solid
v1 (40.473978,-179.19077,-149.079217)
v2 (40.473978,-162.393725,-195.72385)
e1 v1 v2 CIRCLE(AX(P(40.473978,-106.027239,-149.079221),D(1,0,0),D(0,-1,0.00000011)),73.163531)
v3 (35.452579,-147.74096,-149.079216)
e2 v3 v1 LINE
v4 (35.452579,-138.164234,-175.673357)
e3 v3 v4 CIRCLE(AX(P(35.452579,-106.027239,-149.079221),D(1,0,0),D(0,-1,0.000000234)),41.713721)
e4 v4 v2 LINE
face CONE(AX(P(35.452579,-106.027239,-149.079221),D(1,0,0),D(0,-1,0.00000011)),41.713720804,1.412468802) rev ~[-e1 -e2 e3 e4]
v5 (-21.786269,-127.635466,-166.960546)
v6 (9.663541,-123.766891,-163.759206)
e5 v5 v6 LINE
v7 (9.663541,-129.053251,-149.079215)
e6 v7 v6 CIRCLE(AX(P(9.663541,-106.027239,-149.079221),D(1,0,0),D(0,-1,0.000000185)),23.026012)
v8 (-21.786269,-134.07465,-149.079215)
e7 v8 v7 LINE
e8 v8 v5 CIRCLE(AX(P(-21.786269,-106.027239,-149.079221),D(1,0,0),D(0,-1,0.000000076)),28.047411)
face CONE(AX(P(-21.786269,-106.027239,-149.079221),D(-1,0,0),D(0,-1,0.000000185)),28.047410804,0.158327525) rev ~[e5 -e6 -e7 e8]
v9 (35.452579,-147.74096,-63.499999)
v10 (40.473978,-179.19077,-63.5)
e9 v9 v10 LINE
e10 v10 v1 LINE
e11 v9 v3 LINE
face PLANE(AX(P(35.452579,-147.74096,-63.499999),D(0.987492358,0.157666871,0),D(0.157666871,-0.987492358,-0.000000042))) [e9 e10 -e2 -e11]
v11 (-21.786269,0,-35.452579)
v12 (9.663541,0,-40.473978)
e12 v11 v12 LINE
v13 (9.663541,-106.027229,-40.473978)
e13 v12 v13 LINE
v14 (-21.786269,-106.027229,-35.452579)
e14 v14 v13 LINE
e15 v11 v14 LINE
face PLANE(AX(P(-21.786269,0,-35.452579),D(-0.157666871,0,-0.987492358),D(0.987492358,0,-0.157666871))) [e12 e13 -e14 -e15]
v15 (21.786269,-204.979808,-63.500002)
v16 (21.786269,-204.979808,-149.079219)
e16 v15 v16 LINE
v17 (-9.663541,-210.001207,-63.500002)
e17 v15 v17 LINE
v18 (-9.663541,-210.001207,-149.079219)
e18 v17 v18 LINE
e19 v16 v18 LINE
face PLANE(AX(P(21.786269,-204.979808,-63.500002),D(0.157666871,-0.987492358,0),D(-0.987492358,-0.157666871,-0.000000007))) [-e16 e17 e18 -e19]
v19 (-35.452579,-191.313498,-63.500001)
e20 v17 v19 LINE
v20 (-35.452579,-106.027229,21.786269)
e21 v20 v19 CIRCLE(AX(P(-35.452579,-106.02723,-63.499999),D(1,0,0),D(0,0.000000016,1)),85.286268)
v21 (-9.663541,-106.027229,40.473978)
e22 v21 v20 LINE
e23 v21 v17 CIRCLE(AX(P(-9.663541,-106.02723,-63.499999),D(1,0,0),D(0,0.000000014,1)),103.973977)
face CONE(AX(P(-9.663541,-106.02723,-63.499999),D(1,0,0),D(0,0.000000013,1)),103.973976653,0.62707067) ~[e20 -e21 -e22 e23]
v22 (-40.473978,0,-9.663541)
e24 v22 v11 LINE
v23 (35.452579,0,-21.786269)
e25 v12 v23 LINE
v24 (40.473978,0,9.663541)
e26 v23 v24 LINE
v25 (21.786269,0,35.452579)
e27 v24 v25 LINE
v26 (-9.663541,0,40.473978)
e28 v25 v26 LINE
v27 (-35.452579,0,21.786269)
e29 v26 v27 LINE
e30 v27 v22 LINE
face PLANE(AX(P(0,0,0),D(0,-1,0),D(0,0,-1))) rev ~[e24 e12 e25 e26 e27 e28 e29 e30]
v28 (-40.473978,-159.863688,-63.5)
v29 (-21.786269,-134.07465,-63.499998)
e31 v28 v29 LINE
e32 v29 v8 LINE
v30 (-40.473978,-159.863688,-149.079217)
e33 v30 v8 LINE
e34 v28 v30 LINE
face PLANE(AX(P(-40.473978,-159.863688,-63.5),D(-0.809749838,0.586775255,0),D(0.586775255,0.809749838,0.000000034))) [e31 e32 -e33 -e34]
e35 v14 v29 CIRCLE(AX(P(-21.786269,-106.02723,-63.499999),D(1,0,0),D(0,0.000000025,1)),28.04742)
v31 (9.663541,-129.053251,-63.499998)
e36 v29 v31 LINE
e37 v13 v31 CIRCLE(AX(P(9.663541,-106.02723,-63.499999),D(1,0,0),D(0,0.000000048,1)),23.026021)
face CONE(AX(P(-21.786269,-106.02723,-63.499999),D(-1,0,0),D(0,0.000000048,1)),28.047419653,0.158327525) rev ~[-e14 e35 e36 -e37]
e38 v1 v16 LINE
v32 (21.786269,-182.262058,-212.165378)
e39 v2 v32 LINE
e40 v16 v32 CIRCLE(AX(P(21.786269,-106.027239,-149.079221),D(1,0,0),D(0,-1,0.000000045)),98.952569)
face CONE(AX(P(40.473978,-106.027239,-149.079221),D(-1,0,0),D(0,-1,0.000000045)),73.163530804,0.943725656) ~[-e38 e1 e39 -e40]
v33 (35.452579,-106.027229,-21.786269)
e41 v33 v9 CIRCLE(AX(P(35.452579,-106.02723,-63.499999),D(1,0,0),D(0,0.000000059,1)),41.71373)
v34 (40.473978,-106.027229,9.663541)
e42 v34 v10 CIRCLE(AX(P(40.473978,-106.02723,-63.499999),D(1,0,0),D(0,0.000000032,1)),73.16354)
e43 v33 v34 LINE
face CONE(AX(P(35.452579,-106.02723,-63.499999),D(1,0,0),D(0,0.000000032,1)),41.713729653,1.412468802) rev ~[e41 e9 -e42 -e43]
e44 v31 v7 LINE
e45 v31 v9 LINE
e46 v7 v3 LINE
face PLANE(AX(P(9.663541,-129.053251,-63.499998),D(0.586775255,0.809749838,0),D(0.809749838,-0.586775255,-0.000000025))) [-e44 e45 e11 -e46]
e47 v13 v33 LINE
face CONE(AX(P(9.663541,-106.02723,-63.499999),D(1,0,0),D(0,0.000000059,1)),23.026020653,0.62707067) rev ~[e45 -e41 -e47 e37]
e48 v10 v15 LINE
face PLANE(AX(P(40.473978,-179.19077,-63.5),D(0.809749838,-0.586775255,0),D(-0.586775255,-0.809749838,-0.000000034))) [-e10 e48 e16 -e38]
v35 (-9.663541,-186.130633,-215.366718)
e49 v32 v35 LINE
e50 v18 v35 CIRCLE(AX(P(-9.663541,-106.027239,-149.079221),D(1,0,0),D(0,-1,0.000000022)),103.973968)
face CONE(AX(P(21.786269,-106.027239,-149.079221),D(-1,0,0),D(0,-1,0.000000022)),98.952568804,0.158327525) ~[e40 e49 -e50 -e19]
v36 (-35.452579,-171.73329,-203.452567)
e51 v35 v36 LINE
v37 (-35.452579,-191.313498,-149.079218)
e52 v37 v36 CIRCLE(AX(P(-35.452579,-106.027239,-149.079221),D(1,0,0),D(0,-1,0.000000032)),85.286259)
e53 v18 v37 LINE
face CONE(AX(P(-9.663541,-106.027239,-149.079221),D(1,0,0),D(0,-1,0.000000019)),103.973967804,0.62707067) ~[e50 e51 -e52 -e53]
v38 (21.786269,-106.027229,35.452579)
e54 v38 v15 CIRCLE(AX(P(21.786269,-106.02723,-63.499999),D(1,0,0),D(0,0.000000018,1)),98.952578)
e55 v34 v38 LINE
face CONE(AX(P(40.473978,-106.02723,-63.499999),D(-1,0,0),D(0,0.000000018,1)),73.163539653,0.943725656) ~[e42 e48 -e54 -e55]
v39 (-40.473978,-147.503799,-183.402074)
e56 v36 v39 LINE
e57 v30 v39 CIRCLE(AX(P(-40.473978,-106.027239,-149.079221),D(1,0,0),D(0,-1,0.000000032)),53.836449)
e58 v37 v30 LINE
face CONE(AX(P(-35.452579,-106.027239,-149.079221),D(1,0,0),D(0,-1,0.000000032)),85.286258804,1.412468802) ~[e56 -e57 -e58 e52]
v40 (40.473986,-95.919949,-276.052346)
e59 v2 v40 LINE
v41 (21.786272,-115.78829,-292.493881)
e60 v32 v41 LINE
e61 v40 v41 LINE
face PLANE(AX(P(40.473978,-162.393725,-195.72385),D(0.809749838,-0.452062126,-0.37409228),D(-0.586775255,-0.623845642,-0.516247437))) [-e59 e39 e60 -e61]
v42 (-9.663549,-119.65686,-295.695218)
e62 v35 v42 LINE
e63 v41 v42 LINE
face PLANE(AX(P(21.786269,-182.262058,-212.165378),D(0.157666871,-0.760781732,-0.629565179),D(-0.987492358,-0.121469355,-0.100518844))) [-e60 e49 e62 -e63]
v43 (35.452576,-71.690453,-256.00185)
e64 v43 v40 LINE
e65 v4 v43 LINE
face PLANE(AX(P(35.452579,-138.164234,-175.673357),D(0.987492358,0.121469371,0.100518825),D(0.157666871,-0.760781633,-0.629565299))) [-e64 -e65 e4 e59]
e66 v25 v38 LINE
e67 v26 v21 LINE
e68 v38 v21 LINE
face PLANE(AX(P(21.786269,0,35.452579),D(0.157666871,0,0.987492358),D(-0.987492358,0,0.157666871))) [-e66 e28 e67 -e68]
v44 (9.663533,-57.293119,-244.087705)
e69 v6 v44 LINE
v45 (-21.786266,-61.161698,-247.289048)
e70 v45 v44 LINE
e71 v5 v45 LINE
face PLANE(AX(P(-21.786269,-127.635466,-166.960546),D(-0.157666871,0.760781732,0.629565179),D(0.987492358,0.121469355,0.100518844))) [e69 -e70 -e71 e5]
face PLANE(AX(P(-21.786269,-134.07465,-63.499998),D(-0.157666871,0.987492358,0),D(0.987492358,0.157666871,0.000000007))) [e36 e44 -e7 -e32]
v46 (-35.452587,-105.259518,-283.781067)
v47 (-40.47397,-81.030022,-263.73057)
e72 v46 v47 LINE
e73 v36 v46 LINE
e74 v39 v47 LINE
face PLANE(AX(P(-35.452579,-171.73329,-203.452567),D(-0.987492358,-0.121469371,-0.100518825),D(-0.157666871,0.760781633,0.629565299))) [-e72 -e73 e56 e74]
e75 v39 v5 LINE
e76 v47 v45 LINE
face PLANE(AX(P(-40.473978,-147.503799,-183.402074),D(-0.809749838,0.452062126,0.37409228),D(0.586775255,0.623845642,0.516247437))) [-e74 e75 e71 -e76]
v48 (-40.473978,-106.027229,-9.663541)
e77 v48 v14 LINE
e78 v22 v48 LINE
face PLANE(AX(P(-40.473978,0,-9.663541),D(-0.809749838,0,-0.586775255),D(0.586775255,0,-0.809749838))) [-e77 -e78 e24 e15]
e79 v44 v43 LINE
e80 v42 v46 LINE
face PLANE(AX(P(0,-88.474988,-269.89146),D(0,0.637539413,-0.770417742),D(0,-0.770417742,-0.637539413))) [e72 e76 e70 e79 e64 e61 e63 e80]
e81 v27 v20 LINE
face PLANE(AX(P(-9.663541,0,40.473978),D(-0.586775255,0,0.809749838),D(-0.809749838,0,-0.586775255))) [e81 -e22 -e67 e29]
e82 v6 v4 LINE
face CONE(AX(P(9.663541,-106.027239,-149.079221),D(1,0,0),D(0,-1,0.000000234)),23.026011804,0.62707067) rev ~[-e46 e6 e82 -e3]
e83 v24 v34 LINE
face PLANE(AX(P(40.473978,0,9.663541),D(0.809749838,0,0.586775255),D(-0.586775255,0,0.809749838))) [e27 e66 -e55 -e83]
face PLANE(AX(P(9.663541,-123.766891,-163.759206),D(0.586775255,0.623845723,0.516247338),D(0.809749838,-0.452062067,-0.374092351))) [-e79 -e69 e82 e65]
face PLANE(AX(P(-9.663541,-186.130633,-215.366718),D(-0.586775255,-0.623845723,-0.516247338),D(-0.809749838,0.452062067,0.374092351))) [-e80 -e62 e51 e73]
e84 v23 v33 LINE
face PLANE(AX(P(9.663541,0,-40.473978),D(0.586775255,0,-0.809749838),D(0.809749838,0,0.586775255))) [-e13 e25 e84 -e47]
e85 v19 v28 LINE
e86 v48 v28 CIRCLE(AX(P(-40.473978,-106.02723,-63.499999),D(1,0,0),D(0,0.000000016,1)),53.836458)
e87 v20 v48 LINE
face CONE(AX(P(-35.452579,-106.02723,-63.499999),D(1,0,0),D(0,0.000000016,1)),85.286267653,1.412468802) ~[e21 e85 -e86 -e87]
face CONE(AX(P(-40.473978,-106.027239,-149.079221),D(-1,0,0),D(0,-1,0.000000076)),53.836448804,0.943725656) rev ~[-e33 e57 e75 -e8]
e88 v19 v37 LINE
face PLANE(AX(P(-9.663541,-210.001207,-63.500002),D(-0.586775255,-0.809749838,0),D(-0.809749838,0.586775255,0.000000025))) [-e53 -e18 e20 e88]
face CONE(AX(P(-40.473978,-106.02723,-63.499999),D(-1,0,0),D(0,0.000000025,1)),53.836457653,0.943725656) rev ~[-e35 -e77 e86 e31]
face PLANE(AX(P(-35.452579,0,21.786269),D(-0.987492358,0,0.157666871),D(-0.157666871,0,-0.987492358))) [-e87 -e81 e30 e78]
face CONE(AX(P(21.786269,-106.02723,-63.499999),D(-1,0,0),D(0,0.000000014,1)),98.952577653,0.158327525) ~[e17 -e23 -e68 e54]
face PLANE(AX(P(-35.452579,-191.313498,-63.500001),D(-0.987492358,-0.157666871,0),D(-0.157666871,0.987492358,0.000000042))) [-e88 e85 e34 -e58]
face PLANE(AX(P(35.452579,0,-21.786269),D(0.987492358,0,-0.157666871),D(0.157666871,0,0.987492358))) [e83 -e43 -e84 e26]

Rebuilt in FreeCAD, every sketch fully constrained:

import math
import FreeCAD as App
import Part
import Sketcher
Q = App.Units.Quantity


def add_polygon(sketch, points):
    """Adds a closed chain of lines whose ends are joined by coincident constraints."""
    first, n = sketch.GeometryCount, len(points)
    for a, b in zip(points, points[1:] + points[:1]):
        sketch.addGeometry(Part.LineSegment(App.Vector(*a, 0), App.Vector(*b, 0)), False)
    for i in range(n):
        sketch.addConstraint(Sketcher.Constraint("Coincident", first + i, 2, first + (i + 1) % n, 1))

doc = App.newDocument("Part")
body = doc.addObject("PartDesign::Body", "Body")

sketch1 = body.newObject("Sketcher::SketchObject", "Sketch")
sketch1.AttachmentSupport = (doc.getObject("XZ_Plane"), [""])
sketch1.MapMode = "FlatFace"
add_polygon(sketch1, [(-35, 22), (-40, -10), (-22, -35), (10, -40), (35, -22), (40, 10), (22, 35), (-10, 40)])
sketch1.addConstraint(Sketcher.Constraint("Symmetric", 0, 2, 4, 2, -1, 1))
sketch1.addConstraint(Sketcher.Constraint("Symmetric", 1, 2, 5, 2, -1, 1))
sketch1.addConstraint(Sketcher.Constraint("Symmetric", 2, 2, 6, 2, -1, 1))
sketch1.addConstraint(Sketcher.Constraint("Symmetric", 3, 2, 7, 2, -1, 1))
sketch1.addConstraint(Sketcher.Constraint("Perpendicular", 0, 2))
sketch1.addConstraint(Sketcher.Constraint("Perpendicular", 1, 3))
sketch1.addConstraint(Sketcher.Constraint("Equal", 0, 1))
sketch1.addConstraint(Sketcher.Constraint("Equal", 1, 2))
sketch1.addConstraint(Sketcher.Constraint("Equal", 2, 3))
sketch1.addConstraint(Sketcher.Constraint("DistanceY", 2, 2, 1, 2, 5.021399))
sketch1.addConstraint(Sketcher.Constraint("DistanceX", 0, 2, -1, 1, 40.473978))
sketch1.addConstraint(Sketcher.Constraint("DistanceY", 0, 2, -1, 1, 9.663541))

sketch2 = body.newObject("Sketcher::SketchObject", "Sketch001")
sketch2.AttachmentSupport = (doc.getObject("YZ_Plane"), [""])
sketch2.MapMode = "FlatFace"
sketch2.addGeometry(Part.LineSegment(App.Vector(0, 0, 0), App.Vector(-106, 0, 0)), False)
sketch2.addGeometry(Part.ArcOfCircle(Part.Circle(App.Vector(-106, -63, 0), App.Vector(0, 0, 1), 63), math.radians(90), math.radians(180)), False)
sketch2.addGeometry(Part.LineSegment(App.Vector(-170, -64, 0), App.Vector(-170, -149, 0)), False)
sketch2.addGeometry(Part.ArcOfCircle(Part.Circle(App.Vector(-106, -149, 0), App.Vector(0, 0, 1), 63), math.radians(180), math.radians(220)), False)
sketch2.addGeometry(Part.LineSegment(App.Vector(-155, -190, 0), App.Vector(-88, -270, 0)), False)
sketch2.addConstraint(Sketcher.Constraint("Tangent", 0, 2, 1, 1))
sketch2.addConstraint(Sketcher.Constraint("Tangent", 1, 2, 2, 1))
sketch2.addConstraint(Sketcher.Constraint("Tangent", 2, 2, 3, 1))
sketch2.addConstraint(Sketcher.Constraint("Tangent", 3, 2, 4, 1))
sketch2.addConstraint(Sketcher.Constraint("Horizontal", 0))
sketch2.addConstraint(Sketcher.Constraint("Vertical", 2))
sketch2.addConstraint(Sketcher.Constraint("Coincident", 0, 1, -1, 1))
sketch2.addConstraint(Sketcher.Constraint("Radius", 1, Q("2.4999999 in")))
sketch2.addConstraint(Sketcher.Constraint("Radius", 3, 63.49999))
sketch2.addConstraint(Sketcher.Constraint("DistanceX", 0, 2, 0, 1, 106.027229))
sketch2.addConstraint(Sketcher.Constraint("Distance", 4, 104.266151))
sketch2.addConstraint(Sketcher.Constraint("DistanceY", 2, 2, 2, 1, 85.579217))
sketch2.addConstraint(Sketcher.Constraint("DistanceX", 3, 2, -1, 1, 154.948762))
doc.recompute()

additivepipe = body.newObject("PartDesign::AdditivePipe", "AdditivePipe")
additivepipe.Profile = sketch1
additivepipe.Spine = (sketch2, ["Edge1", "Edge2", "Edge3", "Edge4", "Edge5"])

doc.recompute()
